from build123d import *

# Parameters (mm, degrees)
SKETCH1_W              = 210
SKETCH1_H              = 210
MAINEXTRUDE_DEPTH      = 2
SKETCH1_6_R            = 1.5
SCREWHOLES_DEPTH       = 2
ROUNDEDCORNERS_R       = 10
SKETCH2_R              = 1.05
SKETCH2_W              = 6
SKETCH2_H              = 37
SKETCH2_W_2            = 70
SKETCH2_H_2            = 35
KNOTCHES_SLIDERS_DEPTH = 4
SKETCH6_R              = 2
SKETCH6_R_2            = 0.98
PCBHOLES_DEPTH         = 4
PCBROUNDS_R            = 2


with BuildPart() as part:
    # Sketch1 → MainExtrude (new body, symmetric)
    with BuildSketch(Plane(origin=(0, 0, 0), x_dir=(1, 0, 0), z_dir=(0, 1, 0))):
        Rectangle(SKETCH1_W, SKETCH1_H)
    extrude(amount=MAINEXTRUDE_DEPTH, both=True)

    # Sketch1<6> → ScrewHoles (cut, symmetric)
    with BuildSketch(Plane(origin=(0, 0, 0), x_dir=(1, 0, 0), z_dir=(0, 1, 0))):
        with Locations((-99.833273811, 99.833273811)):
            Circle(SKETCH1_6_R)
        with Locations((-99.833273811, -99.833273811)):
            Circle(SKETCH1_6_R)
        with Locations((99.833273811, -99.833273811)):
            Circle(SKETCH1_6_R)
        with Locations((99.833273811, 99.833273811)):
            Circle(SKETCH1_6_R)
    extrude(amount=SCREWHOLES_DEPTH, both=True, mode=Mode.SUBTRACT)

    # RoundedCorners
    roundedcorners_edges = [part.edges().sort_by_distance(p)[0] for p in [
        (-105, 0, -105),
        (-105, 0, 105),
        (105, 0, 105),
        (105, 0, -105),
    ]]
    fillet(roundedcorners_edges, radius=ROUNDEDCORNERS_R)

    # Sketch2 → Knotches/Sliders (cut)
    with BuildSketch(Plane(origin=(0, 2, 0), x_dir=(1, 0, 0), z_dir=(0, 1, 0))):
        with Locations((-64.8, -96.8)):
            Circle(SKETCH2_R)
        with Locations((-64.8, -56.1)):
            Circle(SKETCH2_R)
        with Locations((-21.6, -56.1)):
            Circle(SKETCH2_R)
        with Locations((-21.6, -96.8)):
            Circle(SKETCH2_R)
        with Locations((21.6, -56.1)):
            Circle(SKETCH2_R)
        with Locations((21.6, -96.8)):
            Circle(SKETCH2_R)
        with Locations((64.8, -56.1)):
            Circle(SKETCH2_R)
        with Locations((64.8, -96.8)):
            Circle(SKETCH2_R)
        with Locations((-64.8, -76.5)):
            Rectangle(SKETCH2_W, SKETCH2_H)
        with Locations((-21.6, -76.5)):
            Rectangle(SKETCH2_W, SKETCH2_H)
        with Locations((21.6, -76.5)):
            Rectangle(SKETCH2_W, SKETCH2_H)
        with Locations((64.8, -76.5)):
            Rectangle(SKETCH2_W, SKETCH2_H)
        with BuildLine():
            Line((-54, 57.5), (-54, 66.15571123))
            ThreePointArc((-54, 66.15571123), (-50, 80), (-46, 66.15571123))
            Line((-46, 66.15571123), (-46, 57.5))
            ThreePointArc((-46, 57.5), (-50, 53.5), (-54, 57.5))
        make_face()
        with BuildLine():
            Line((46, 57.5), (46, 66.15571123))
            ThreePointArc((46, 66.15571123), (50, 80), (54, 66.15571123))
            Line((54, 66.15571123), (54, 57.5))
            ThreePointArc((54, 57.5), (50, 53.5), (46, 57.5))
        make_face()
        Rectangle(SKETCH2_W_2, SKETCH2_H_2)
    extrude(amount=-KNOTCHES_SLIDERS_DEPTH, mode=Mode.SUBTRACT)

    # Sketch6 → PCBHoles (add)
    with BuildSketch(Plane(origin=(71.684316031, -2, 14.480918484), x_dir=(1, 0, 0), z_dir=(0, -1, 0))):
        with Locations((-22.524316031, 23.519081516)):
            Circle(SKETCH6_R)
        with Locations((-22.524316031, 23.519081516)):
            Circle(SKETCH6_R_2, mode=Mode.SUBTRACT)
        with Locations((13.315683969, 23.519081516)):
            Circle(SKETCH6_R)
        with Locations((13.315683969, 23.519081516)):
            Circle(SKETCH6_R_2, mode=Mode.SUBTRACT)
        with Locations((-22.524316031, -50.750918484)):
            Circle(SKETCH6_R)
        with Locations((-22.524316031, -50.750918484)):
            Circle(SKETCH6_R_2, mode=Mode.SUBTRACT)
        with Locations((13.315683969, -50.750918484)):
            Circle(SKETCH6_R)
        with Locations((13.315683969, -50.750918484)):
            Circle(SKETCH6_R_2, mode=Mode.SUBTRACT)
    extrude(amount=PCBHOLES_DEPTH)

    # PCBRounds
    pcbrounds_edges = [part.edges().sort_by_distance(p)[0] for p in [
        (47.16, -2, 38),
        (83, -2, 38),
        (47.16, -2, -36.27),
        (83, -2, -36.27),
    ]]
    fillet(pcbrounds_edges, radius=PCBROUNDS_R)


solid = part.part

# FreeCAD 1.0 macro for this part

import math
import FreeCAD as App
import Part
import Sketcher
from FreeCAD import Vector


def edges_at(feature, points):
    """Names of the edges that pass closest to the given points."""
    edges = feature.Shape.Edges
    near = lambda p: min(range(len(edges)), key=lambda i: edges[i].distToShape(Part.Vertex(*p))[0])
    return sorted({f"Edge{near(p) + 1}" for p in points})


def add_polygon(sketch, points):
    """Adds a closed chain of lines whose ends are joined by coincident constraints."""
    first, n = sketch.GeometryCount, len(points)
    for a, b in zip(points, points[1:] + points[:1]):
        sketch.addGeometry(Part.LineSegment(App.Vector(*a, 0), App.Vector(*b, 0)), False)
    for i in range(n):
        sketch.addConstraint(Sketcher.Constraint("Coincident", first + i, 2, first + (i + 1) % n, 1))

doc = App.newDocument("Part")
body = doc.addObject("PartDesign::Body", "Body")

sketch1 = body.newObject("Sketcher::SketchObject", "Sketch")
sketch1.AttachmentSupport = (doc.getObject("XZ_Plane"), [""])
sketch1.MapMode = "FlatFace"
add_polygon(sketch1, [(-105, -105), (-105, 105), (105, 105), (105, -105)])
sketch1.addConstraint(Sketcher.Constraint("Vertical", 0))
sketch1.addConstraint(Sketcher.Constraint("Horizontal", 1))
sketch1.addConstraint(Sketcher.Constraint("Vertical", 2))
sketch1.addConstraint(Sketcher.Constraint("Horizontal", 3))
sketch1.addConstraint(Sketcher.Constraint("Symmetric", 0, 2, 2, 2, -1, 1))
sketch1.addConstraint(Sketcher.Constraint("Equal", 3, 0))
sketch1.addConstraint(Sketcher.Constraint("DistanceX", 1, 1, 1, 2, 210.0))
pad1 = body.newObject("PartDesign::Pad", "Pad")
pad1.Profile = sketch1
pad1.Length = 4
pad1.Midplane = True

sketch2 = body.newObject("Sketcher::SketchObject", "Sketch001")
sketch2.AttachmentSupport = (doc.getObject("XZ_Plane"), [""])
sketch2.MapMode = "FlatFace"
sketch2.addGeometry(Part.Circle(Vector(-99.8, -99.8, 0), Vector(0, 0, 1), 1.5), False)
sketch2.addGeometry(Part.Circle(Vector(-99.8, 99.8, 0), Vector(0, 0, 1), 1.5), False)
sketch2.addGeometry(Part.Circle(Vector(99.8, 99.8, 0), Vector(0, 0, 1), 1.5), False)
sketch2.addGeometry(Part.Circle(Vector(99.8, -99.8, 0), Vector(0, 0, 1), 1.5), False)
sketch2.addConstraint(Sketcher.Constraint("Equal", 0, 1))
sketch2.addConstraint(Sketcher.Constraint("Equal", 1, 2))
sketch2.addConstraint(Sketcher.Constraint("Equal", 2, 3))
sketch2.addConstraint(Sketcher.Constraint("Symmetric", 0, 3, 2, 3, -1, 1))
sketch2.addConstraint(Sketcher.Constraint("Symmetric", 1, 3, 3, 3, -1, 1))
sketch2.addConstraint(Sketcher.Constraint("Symmetric", 1, 3, 2, 3, -2))
sketch2.addConstraint(Sketcher.Constraint("Diameter", 0, 3.0))
sketch2.addConstraint(Sketcher.Constraint("DistanceX", 0, 3, -1, 1, 99.833274))
sketch2.addConstraint(Sketcher.Constraint("DistanceY", 0, 3, -1, 1, 99.833274))
pocket1 = body.newObject("PartDesign::Pocket", "Pocket")
pocket1.Profile = sketch2
pocket1.Length = 4
pocket1.Midplane = True
doc.recompute()

fillet = body.newObject("PartDesign::Fillet", "Fillet")
fillet.Base = (pocket1, edges_at(pocket1, [
    (-105, 0, -105),
    (-105, 0, 105),
    (105, 0, 105),
    (105, 0, -105),
]))
fillet.Radius = 10

sketch3 = body.newObject("Sketcher::SketchObject", "Sketch002")
sketch3.AttachmentSupport = (doc.getObject("XZ_Plane"), [""])
sketch3.MapMode = "FlatFace"
sketch3.AttachmentOffset = App.Placement(Vector(0, 0, -2), App.Rotation())
sketch3.addGeometry(Part.Circle(Vector(-64.8, 96.8, 0), Vector(0, 0, 1), 1.1), False)
sketch3.addGeometry(Part.Circle(Vector(-64.8, 56.1, 0), Vector(0, 0, 1), 1.1), False)
sketch3.addGeometry(Part.Circle(Vector(-21.6, 56.1, 0), Vector(0, 0, 1), 1.1), False)
sketch3.addGeometry(Part.Circle(Vector(-21.6, 96.8, 0), Vector(0, 0, 1), 1.1), False)
sketch3.addGeometry(Part.Circle(Vector(21.6, 56.1, 0), Vector(0, 0, 1), 1.1), False)
sketch3.addGeometry(Part.Circle(Vector(21.6, 96.8, 0), Vector(0, 0, 1), 1.1), False)
sketch3.addGeometry(Part.Circle(Vector(64.8, 56.1, 0), Vector(0, 0, 1), 1.1), False)
sketch3.addGeometry(Part.Circle(Vector(64.8, 96.8, 0), Vector(0, 0, 1), 1.1), False)
add_polygon(sketch3, [(-67.8, 58), (-67.8, 95), (-61.8, 95), (-61.8, 58)])
add_polygon(sketch3, [(-24.6, 58), (-24.6, 95), (-18.6, 95), (-18.6, 58)])
add_polygon(sketch3, [(18.6, 58), (18.6, 95), (24.6, 95), (24.6, 58)])
add_polygon(sketch3, [(61.8, 58), (61.8, 95), (67.8, 95), (67.8, 58)])
sketch3.addGeometry(Part.LineSegment(Vector(-54, -66.2, 0), Vector(-54, -57.5, 0)), False)
sketch3.addGeometry(Part.ArcOfCircle(Part.Circle(Vector(-50, -57.5, 0), Vector(0, 0, 1), 4), math.radians(0), math.radians(180)), False)
sketch3.addGeometry(Part.LineSegment(Vector(-46, -57.5, 0), Vector(-46, -66.2, 0)), False)
sketch3.addGeometry(Part.ArcOfCircle(Part.Circle(Vector(-50, -72.5, 0), Vector(0, 0, 1), 7.5), math.radians(122), math.radians(418)), False)
sketch3.addGeometry(Part.LineSegment(Vector(46, -66.2, 0), Vector(46, -57.5, 0)), False)
sketch3.addGeometry(Part.ArcOfCircle(Part.Circle(Vector(50, -57.5, 0), Vector(0, 0, 1), 4), math.radians(0), math.radians(180)), False)
sketch3.addGeometry(Part.LineSegment(Vector(54, -57.5, 0), Vector(54, -66.2, 0)), False)
sketch3.addGeometry(Part.ArcOfCircle(Part.Circle(Vector(50, -72.5, 0), Vector(0, 0, 1), 7.5), math.radians(122), math.radians(418)), False)
add_polygon(sketch3, [(-35, -17.5), (-35, 17.5), (35, 17.5), (35, -17.5)])
sketch3.addConstraint(Sketcher.Constraint("Tangent", 24, 2, 25, 2))
sketch3.addConstraint(Sketcher.Constraint("Tangent", 25, 1, 26, 1))
sketch3.addConstraint(Sketcher.Constraint("Coincident", 26, 2, 27, 2))
sketch3.addConstraint(Sketcher.Constraint("Coincident", 27, 1, 24, 1))
sketch3.addConstraint(Sketcher.Constraint("Tangent", 28, 2, 29, 2))
sketch3.addConstraint(Sketcher.Constraint("Tangent", 29, 1, 30, 1))
sketch3.addConstraint(Sketcher.Constraint("Coincident", 30, 2, 31, 2))
sketch3.addConstraint(Sketcher.Constraint("Coincident", 31, 1, 28, 1))
sketch3.addConstraint(Sketcher.Constraint("Vertical", 8))
sketch3.addConstraint(Sketcher.Constraint("Horizontal", 9))
sketch3.addConstraint(Sketcher.Constraint("Vertical", 10))
sketch3.addConstraint(Sketcher.Constraint("Horizontal", 11))
sketch3.addConstraint(Sketcher.Constraint("Vertical", 12))
sketch3.addConstraint(Sketcher.Constraint("Horizontal", 13))
sketch3.addConstraint(Sketcher.Constraint("Vertical", 14))
sketch3.addConstraint(Sketcher.Constraint("Horizontal", 15))
sketch3.addConstraint(Sketcher.Constraint("Vertical", 16))
sketch3.addConstraint(Sketcher.Constraint("Horizontal", 17))
sketch3.addConstraint(Sketcher.Constraint("Vertical", 18))
sketch3.addConstraint(Sketcher.Constraint("Horizontal", 19))
sketch3.addConstraint(Sketcher.Constraint("Vertical", 20))
sketch3.addConstraint(Sketcher.Constraint("Horizontal", 21))
sketch3.addConstraint(Sketcher.Constraint("Vertical", 22))
sketch3.addConstraint(Sketcher.Constraint("Horizontal", 23))
sketch3.addConstraint(Sketcher.Constraint("Vertical", 24))
sketch3.addConstraint(Sketcher.Constraint("Vertical", 26))
sketch3.addConstraint(Sketcher.Constraint("Vertical", 28))
sketch3.addConstraint(Sketcher.Constraint("Vertical", 30))
sketch3.addConstraint(Sketcher.Constraint("Vertical", 32))
sketch3.addConstraint(Sketcher.Constraint("Horizontal", 33))
sketch3.addConstraint(Sketcher.Constraint("Vertical", 34))
sketch3.addConstraint(Sketcher.Constraint("Horizontal", 35))
sketch3.addConstraint(Sketcher.Constraint("Equal", 0, 1))
sketch3.addConstraint(Sketcher.Constraint("Equal", 1, 2))
sketch3.addConstraint(Sketcher.Constraint("Equal", 2, 3))
sketch3.addConstraint(Sketcher.Constraint("Equal", 3, 4))
sketch3.addConstraint(Sketcher.Constraint("Equal", 4, 5))
sketch3.addConstraint(Sketcher.Constraint("Equal", 5, 6))
sketch3.addConstraint(Sketcher.Constraint("Equal", 6, 7))
sketch3.addConstraint(Sketcher.Constraint("Equal", 25, 29))
sketch3.addConstraint(Sketcher.Constraint("Equal", 27, 31))
sketch3.addConstraint(Sketcher.Constraint("Symmetric", 32, 2, 34, 2, -1, 1))
sketch3.addConstraint(Sketcher.Constraint("Symmetric", 2, 3, 4, 3, -2))
sketch3.addConstraint(Sketcher.Constraint("Symmetric", 3, 3, 5, 3, -2))
sketch3.addConstraint(Sketcher.Constraint("Symmetric", 1, 3, 6, 3, -2))
sketch3.addConstraint(Sketcher.Constraint("Symmetric", 0, 3, 7, 3, -2))
sketch3.addConstraint(Sketcher.Constraint("Symmetric", 25, 3, 29, 3, -2))
sketch3.addConstraint(Sketcher.Constraint("Symmetric", 27, 3, 31, 3, -2))
sketch3.addConstraint(Sketcher.Constraint("Symmetric", 13, 2, 16, 2, -2))
sketch3.addConstraint(Sketcher.Constraint("Symmetric", 15, 2, 18, 2, -2))
sketch3.addConstraint(Sketcher.Constraint("Symmetric", 9, 2, 20, 2, -2))
sketch3.addConstraint(Sketcher.Constraint("Symmetric", 11, 2, 22, 2, -2))
sketch3.addConstraint(Sketcher.Constraint("Horizontal", 1, 3, 2, 3))
sketch3.addConstraint(Sketcher.Constraint("Horizontal", 0, 3, 3, 3))
sketch3.addConstraint(Sketcher.Constraint("Horizontal", 9, 2, 12, 2))
sketch3.addConstraint(Sketcher.Constraint("Horizontal", 11, 2, 14, 2))
sketch3.addConstraint(Sketcher.Constraint("Horizontal", 26, 2, 27, 1))
sketch3.addConstraint(Sketcher.Constraint("Vertical", 0, 3, 1, 3))
sketch3.addConstraint(Sketcher.Constraint("Vertical", 2, 3, 3, 3))
sketch3.addConstraint(Sketcher.Constraint("Equal", 11, 13))
sketch3.addConstraint(Sketcher.Constraint("Radius", 25, 4.0))
sketch3.addConstraint(Sketcher.Constraint("Diameter", 0, 2.1))
sketch3.addConstraint(Sketcher.Constraint("Radius", 27, 7.5))
sketch3.addConstraint(Sketcher.Constraint("DistanceX", 9, 1, 9, 2, 6.0))
sketch3.addConstraint(Sketcher.Constraint("DistanceX", 33, 1, 33, 2, 70.0))
sketch3.addConstraint(Sketcher.Constraint("DistanceY", 8, 1, 8, 2, 37.0))
sketch3.addConstraint(Sketcher.Constraint("DistanceY", 32, 1, 32, 2, 35.0))
sketch3.addConstraint(Sketcher.Constraint("DistanceX", 25, 3, -1, 1, 50.0))
sketch3.addConstraint(Sketcher.Constraint("DistanceY", -1, 1, 8, 2, 95.0))
sketch3.addConstraint(Sketcher.Constraint("DistanceY", 27, 3, 25, 3, 15.0))
sketch3.addConstraint(Sketcher.Constraint("DistanceX", 8, 2, 0, 3, 3.0))
sketch3.addConstraint(Sketcher.Constraint("DistanceX", 12, 2, 3, 3, 3.0))
sketch3.addConstraint(Sketcher.Constraint("DistanceY", 28, 2, 34, 2, 40.0))
sketch3.addConstraint(Sketcher.Constraint("DistanceX", 0, 3, -1, 1, 64.8))
sketch3.addConstraint(Sketcher.Constraint("DistanceY", -1, 1, 0, 3, 96.8))
sketch3.addConstraint(Sketcher.Constraint("DistanceY", -1, 1, 1, 3, 56.1))
sketch3.addConstraint(Sketcher.Constraint("DistanceX", 2, 3, -1, 1, 21.6))
pocket2 = body.newObject("PartDesign::Pocket", "Pocket001")
pocket2.Profile = sketch3
pocket2.Length = 4
pocket2.Reversed = True

sketch4 = body.newObject("Sketcher::SketchObject", "Sketch003")
sketch4.AttachmentSupport = (doc.getObject("XZ_Plane"), [""])
sketch4.MapMode = "FlatFace"
sketch4.AttachmentOffset = App.Placement(Vector(0, 0, 2), App.Rotation())
sketch4.addGeometry(Part.Circle(Vector(49.2, 38, 0), Vector(0, 0, 1), 2), False)
sketch4.addGeometry(Part.Circle(Vector(49.2, 38, 0), Vector(0, 0, 1), 1), False)
sketch4.addGeometry(Part.Circle(Vector(85, 38, 0), Vector(0, 0, 1), 2), False)
sketch4.addGeometry(Part.Circle(Vector(85, 38, 0), Vector(0, 0, 1), 1), False)
sketch4.addGeometry(Part.Circle(Vector(49.2, -36.3, 0), Vector(0, 0, 1), 2), False)
sketch4.addGeometry(Part.Circle(Vector(49.2, -36.3, 0), Vector(0, 0, 1), 1), False)
sketch4.addGeometry(Part.Circle(Vector(85, -36.3, 0), Vector(0, 0, 1), 2), False)
sketch4.addGeometry(Part.Circle(Vector(85, -36.3, 0), Vector(0, 0, 1), 1), False)
sketch4.addConstraint(Sketcher.Constraint("Coincident", 1, 3, 0, 3))
sketch4.addConstraint(Sketcher.Constraint("Coincident", 3, 3, 2, 3))
sketch4.addConstraint(Sketcher.Constraint("Coincident", 5, 3, 4, 3))
sketch4.addConstraint(Sketcher.Constraint("Coincident", 7, 3, 6, 3))
sketch4.addConstraint(Sketcher.Constraint("Equal", 0, 2))
sketch4.addConstraint(Sketcher.Constraint("Equal", 1, 3))
sketch4.addConstraint(Sketcher.Constraint("Equal", 2, 4))
sketch4.addConstraint(Sketcher.Constraint("Equal", 3, 5))
sketch4.addConstraint(Sketcher.Constraint("Equal", 4, 6))
sketch4.addConstraint(Sketcher.Constraint("Equal", 5, 7))
sketch4.addConstraint(Sketcher.Constraint("Horizontal", 1, 3, 2, 3))
sketch4.addConstraint(Sketcher.Constraint("Horizontal", 5, 3, 6, 3))
sketch4.addConstraint(Sketcher.Constraint("Vertical", 1, 3, 4, 3))
sketch4.addConstraint(Sketcher.Constraint("Vertical", 3, 3, 6, 3))
sketch4.addConstraint(Sketcher.Constraint("Diameter", 0, 4.0))
sketch4.addConstraint(Sketcher.Constraint("Diameter", 1, 1.96))
sketch4.addConstraint(Sketcher.Constraint("DistanceY", -1, 1, 0, 3, 38.0))
sketch4.addConstraint(Sketcher.Constraint("DistanceX", -1, 1, 2, 3, 85.0))
sketch4.addConstraint(Sketcher.Constraint("DistanceX", -1, 1, 0, 3, 49.16))
sketch4.addConstraint(Sketcher.Constraint("DistanceY", 4, 3, -1, 1, 36.27))
pad2 = body.newObject("PartDesign::Pad", "Pad001")
pad2.Profile = sketch4
pad2.Length = 4
doc.recompute()

fillet2 = body.newObject("PartDesign::Fillet", "Fillet001")
fillet2.Base = (pad2, edges_at(pad2, [
    (47.16, -2, 38),
    (83, -2, 38),
    (47.16, -2, -36.27),
    (83, -2, -36.27),
]))
fillet2.Radius = 2

doc.recompute()
